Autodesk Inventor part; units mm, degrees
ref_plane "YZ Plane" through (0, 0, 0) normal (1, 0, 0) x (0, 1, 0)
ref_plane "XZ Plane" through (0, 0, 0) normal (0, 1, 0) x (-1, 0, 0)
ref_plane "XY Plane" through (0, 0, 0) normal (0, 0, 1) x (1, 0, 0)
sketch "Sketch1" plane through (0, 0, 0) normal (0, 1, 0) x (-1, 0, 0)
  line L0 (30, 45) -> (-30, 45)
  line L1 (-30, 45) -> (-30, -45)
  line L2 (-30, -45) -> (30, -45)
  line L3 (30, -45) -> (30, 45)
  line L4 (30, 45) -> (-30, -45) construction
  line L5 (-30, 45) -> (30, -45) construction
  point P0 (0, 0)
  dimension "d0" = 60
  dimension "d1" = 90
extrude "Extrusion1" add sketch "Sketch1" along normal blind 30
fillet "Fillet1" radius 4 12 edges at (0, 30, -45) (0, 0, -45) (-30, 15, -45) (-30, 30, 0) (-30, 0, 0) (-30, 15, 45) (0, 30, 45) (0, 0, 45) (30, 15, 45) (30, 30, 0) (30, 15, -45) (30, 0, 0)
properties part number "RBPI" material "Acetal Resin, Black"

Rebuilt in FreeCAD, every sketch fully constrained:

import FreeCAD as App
import Part
import Sketcher


def add_polygon(sketch, points):
    """Adds a closed chain of lines whose ends are joined by coincident constraints."""
    first, n = sketch.GeometryCount, len(points)
    for a, b in zip(points, points[1:] + points[:1]):
        sketch.addGeometry(Part.LineSegment(App.Vector(*a, 0), App.Vector(*b, 0)), False)
    for i in range(n):
        sketch.addConstraint(Sketcher.Constraint("Coincident", first + i, 2, first + (i + 1) % n, 1))

doc = App.newDocument("Part")
body = doc.addObject("PartDesign::Body", "Body")

# Sketch on XZ plane
sketch1 = body.newObject("Sketcher::SketchObject", "Sketch")
sketch1.AttachmentSupport = (doc.getObject("XZ_Plane"), [""])
sketch1.MapMode = "FlatFace"
add_polygon(sketch1, [(-30, -45), (-30, 45), (30, 45), (30, -45)])  # lines 0-3
sketch1.addConstraint([
    Sketcher.Constraint("Vertical", 0),
    Sketcher.Constraint("Horizontal", 1),
    Sketcher.Constraint("Vertical", 2),
    Sketcher.Constraint("Horizontal", 3),
    Sketcher.Constraint("Symmetric", 0, 2, 2, 2, -1, 1),
    Sketcher.Constraint("DistanceX", 1, 1, 1, 2, 60.0),
    Sketcher.Constraint("DistanceY", 0, 1, 0, 2, 90.0),
])
pad1 = body.newObject("PartDesign::Pad", "Pad")
pad1.Profile = sketch1
pad1.Length = 30
pad1.Reversed = True
doc.recompute()

fillet = body.newObject("PartDesign::Fillet", "Fillet")
fillet.Base = (pad1, ["Edge1"])
fillet.UseAllEdges = True
fillet.Radius = 4

doc.recompute()
